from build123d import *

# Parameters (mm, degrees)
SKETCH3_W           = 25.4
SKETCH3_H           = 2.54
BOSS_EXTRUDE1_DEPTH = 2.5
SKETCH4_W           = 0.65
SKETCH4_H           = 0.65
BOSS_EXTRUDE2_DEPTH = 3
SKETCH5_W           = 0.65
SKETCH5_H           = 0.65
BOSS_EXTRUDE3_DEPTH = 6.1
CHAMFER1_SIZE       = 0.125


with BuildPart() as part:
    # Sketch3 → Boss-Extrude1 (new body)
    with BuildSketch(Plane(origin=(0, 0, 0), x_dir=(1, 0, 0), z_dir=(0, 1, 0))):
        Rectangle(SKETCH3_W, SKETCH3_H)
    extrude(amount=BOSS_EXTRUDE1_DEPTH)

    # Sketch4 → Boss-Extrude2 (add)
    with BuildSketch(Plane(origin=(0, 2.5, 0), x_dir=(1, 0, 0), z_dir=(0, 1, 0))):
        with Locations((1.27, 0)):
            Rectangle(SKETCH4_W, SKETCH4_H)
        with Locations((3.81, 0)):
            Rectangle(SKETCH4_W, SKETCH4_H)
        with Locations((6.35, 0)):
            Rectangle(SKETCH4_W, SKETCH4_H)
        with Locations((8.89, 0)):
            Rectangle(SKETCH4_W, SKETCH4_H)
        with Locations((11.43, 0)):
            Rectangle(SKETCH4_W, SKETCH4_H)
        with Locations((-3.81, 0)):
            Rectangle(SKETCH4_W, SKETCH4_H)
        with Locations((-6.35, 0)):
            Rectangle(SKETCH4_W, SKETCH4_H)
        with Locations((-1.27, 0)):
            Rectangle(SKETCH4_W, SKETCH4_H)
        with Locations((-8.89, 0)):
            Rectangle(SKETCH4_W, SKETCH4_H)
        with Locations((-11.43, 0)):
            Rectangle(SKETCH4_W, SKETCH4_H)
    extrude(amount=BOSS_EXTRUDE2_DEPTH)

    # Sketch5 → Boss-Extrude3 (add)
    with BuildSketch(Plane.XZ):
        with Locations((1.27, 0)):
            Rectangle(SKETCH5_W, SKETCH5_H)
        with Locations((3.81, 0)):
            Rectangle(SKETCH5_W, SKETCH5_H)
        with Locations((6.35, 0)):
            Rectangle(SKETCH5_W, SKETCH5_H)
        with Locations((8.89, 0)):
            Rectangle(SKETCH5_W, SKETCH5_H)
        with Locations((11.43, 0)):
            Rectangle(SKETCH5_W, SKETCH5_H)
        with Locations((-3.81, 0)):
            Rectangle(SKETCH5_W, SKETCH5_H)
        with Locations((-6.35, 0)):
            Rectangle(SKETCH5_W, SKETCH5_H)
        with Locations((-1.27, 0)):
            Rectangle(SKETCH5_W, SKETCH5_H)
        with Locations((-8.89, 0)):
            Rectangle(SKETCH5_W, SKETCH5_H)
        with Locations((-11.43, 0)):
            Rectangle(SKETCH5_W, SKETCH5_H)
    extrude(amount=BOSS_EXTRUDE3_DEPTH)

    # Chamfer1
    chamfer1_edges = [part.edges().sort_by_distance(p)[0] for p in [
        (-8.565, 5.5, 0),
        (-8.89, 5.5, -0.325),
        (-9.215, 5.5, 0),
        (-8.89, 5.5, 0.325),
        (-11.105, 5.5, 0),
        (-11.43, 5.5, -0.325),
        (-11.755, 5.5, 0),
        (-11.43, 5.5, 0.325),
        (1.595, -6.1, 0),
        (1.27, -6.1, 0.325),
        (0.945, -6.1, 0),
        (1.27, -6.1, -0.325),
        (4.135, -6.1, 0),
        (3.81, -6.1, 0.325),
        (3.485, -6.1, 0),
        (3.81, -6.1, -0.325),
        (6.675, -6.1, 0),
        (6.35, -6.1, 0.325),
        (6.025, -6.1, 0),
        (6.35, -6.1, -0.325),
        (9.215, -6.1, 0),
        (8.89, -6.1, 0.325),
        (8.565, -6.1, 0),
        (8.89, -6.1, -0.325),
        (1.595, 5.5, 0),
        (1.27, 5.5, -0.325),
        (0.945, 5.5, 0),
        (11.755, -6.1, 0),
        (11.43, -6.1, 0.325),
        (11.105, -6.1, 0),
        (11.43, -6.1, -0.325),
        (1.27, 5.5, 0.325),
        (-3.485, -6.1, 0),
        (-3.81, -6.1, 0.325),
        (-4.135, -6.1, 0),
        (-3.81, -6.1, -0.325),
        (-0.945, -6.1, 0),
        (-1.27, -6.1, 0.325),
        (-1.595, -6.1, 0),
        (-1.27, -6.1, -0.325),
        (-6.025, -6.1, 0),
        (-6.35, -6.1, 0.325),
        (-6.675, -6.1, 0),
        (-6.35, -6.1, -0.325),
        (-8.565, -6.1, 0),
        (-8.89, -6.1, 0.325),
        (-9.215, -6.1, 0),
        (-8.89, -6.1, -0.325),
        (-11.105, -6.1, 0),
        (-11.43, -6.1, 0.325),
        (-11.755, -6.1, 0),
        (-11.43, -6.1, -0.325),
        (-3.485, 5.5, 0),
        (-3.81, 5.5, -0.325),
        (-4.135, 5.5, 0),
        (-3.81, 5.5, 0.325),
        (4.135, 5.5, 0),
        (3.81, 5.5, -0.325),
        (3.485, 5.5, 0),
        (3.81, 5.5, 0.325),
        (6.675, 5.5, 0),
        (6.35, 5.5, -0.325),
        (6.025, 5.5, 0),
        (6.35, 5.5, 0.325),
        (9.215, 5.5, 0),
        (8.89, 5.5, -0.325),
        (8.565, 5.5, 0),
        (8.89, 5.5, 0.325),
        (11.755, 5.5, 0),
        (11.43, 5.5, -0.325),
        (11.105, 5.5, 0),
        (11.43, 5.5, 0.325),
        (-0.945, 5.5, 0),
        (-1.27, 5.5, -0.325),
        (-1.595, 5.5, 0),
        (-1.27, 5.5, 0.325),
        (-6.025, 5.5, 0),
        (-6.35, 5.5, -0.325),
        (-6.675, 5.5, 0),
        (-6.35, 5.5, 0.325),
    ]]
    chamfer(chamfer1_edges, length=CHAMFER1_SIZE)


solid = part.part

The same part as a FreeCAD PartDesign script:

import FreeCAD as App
import Part
import Sketcher

V = App.Vector


def edges_at(feature, points):
    """Names of the edges that pass closest to the given points."""
    edges = feature.Shape.Edges
    near = lambda p: min(range(len(edges)), key=lambda i: edges[i].distToShape(Part.Vertex(*p))[0])
    return sorted({f"Edge{near(p) + 1}" for p in points})

doc = App.newDocument("Part")
body = doc.addObject("PartDesign::Body", "Body")

# Sketch on XZ plane
sketch1 = doc.addObject("Sketcher::SketchObject", "Sketch")
body.addObject(sketch1)
sketch1.AttachmentSupport = (doc.XZ_Plane, [""])
sketch1.MapMode = "FlatFace"
sketch1.addGeometry([
    Part.LineSegment(V(-12.7, -1.27, 0), V(-12.7, 1.27, 0)),
    Part.LineSegment(V(-12.7, 1.27, 0), V(12.7, 1.27, 0)),
    Part.LineSegment(V(12.7, 1.27, 0), V(12.7, -1.27, 0)),
    Part.LineSegment(V(12.7, -1.27, 0), V(-12.7, -1.27, 0)),
], False)
sketch1.addConstraint([
    Sketcher.Constraint("Coincident", 0, 2, 1, 1),
    Sketcher.Constraint("Coincident", 1, 2, 2, 1),
    Sketcher.Constraint("Coincident", 2, 2, 3, 1),
    Sketcher.Constraint("Coincident", 3, 2, 0, 1),
    Sketcher.Constraint("Vertical", 0),
    Sketcher.Constraint("Horizontal", 1),
    Sketcher.Constraint("Vertical", 2),
    Sketcher.Constraint("Horizontal", 3),
    Sketcher.Constraint("Symmetric", 0, 2, 2, 2, -1, 1),
    Sketcher.Constraint("DistanceX", 1, 1, 1, 2, 25.4),
    Sketcher.Constraint("DistanceY", 0, 1, 0, 2, 2.54),
])
pad1 = doc.addObject("PartDesign::Pad", "Pad")
body.addObject(pad1)
pad1.Profile = sketch1
pad1.Length = 2.5
pad1.Reversed = True

# Sketch on XZ plane
sketch2 = doc.addObject("Sketcher::SketchObject", "Sketch001")
body.addObject(sketch2)
sketch2.AttachmentSupport = (doc.XZ_Plane, [""])
sketch2.MapMode = "FlatFace"
sketch2.AttachmentOffset = App.Placement(V(0, 0, -2.5), App.Rotation())
sketch2.addGeometry([
    Part.LineSegment(V(0.945, -0.325, 0), V(0.945, 0.325, 0)),  # 0
    Part.LineSegment(V(0.945, 0.325, 0), V(1.595, 0.325, 0)),  # 1
    Part.LineSegment(V(1.595, 0.325, 0), V(1.595, -0.325, 0)),  # 2
    Part.LineSegment(V(1.595, -0.325, 0), V(0.945, -0.325, 0)),  # 3
    Part.LineSegment(V(3.485, -0.325, 0), V(3.485, 0.325, 0)),  # 4
    Part.LineSegment(V(3.485, 0.325, 0), V(4.135, 0.325, 0)),  # 5
    Part.LineSegment(V(4.135, 0.325, 0), V(4.135, -0.325, 0)),  # 6
    Part.LineSegment(V(4.135, -0.325, 0), V(3.485, -0.325, 0)),  # 7
    Part.LineSegment(V(6.025, -0.325, 0), V(6.025, 0.325, 0)),  # 8
    Part.LineSegment(V(6.025, 0.325, 0), V(6.675, 0.325, 0)),  # 9
    Part.LineSegment(V(6.675, 0.325, 0), V(6.675, -0.325, 0)),  # 10
    Part.LineSegment(V(6.675, -0.325, 0), V(6.025, -0.325, 0)),  # 11
    Part.LineSegment(V(8.565, -0.325, 0), V(8.565, 0.325, 0)),  # 12
    Part.LineSegment(V(8.565, 0.325, 0), V(9.215, 0.325, 0)),  # 13
    Part.LineSegment(V(9.215, 0.325, 0), V(9.215, -0.325, 0)),  # 14
    Part.LineSegment(V(9.215, -0.325, 0), V(8.565, -0.325, 0)),  # 15
    Part.LineSegment(V(11.105, -0.325, 0), V(11.105, 0.325, 0)),  # 16
    Part.LineSegment(V(11.105, 0.325, 0), V(11.755, 0.325, 0)),  # 17
    Part.LineSegment(V(11.755, 0.325, 0), V(11.755, -0.325, 0)),  # 18
    Part.LineSegment(V(11.755, -0.325, 0), V(11.105, -0.325, 0)),  # 19
    Part.LineSegment(V(-4.135, -0.325, 0), V(-4.135, 0.325, 0)),  # 20
    Part.LineSegment(V(-4.135, 0.325, 0), V(-3.485, 0.325, 0)),  # 21
    Part.LineSegment(V(-3.485, 0.325, 0), V(-3.485, -0.325, 0)),  # 22
    Part.LineSegment(V(-3.485, -0.325, 0), V(-4.135, -0.325, 0)),  # 23
    Part.LineSegment(V(-6.675, -0.325, 0), V(-6.675, 0.325, 0)),  # 24
    Part.LineSegment(V(-6.675, 0.325, 0), V(-6.025, 0.325, 0)),  # 25
    Part.LineSegment(V(-6.025, 0.325, 0), V(-6.025, -0.325, 0)),  # 26
    Part.LineSegment(V(-6.025, -0.325, 0), V(-6.675, -0.325, 0)),  # 27
    Part.LineSegment(V(-1.595, -0.325, 0), V(-1.595, 0.325, 0)),  # 28
    Part.LineSegment(V(-1.595, 0.325, 0), V(-0.945, 0.325, 0)),  # 29
    Part.LineSegment(V(-0.945, 0.325, 0), V(-0.945, -0.325, 0)),  # 30
    Part.LineSegment(V(-0.945, -0.325, 0), V(-1.595, -0.325, 0)),  # 31
    Part.LineSegment(V(-9.215, -0.325, 0), V(-9.215, 0.325, 0)),  # 32
    Part.LineSegment(V(-9.215, 0.325, 0), V(-8.565, 0.325, 0)),  # 33
    Part.LineSegment(V(-8.565, 0.325, 0), V(-8.565, -0.325, 0)),  # 34
    Part.LineSegment(V(-8.565, -0.325, 0), V(-9.215, -0.325, 0)),  # 35
    Part.LineSegment(V(-11.755, -0.325, 0), V(-11.755, 0.325, 0)),  # 36
    Part.LineSegment(V(-11.755, 0.325, 0), V(-11.105, 0.325, 0)),  # 37
    Part.LineSegment(V(-11.105, 0.325, 0), V(-11.105, -0.325, 0)),  # 38
    Part.LineSegment(V(-11.105, -0.325, 0), V(-11.755, -0.325, 0)),  # 39
], False)
sketch2.addConstraint([
    Sketcher.Constraint("Coincident", 0, 2, 1, 1),
    Sketcher.Constraint("Coincident", 1, 2, 2, 1),
    Sketcher.Constraint("Coincident", 2, 2, 3, 1),
    Sketcher.Constraint("Coincident", 3, 2, 0, 1),
    Sketcher.Constraint("Coincident", 4, 2, 5, 1),
    Sketcher.Constraint("Coincident", 5, 2, 6, 1),
    Sketcher.Constraint("Coincident", 6, 2, 7, 1),
    Sketcher.Constraint("Coincident", 7, 2, 4, 1),
    Sketcher.Constraint("Coincident", 8, 2, 9, 1),
    Sketcher.Constraint("Coincident", 9, 2, 10, 1),
    Sketcher.Constraint("Coincident", 10, 2, 11, 1),
    Sketcher.Constraint("Coincident", 11, 2, 8, 1),
    Sketcher.Constraint("Coincident", 12, 2, 13, 1),
    Sketcher.Constraint("Coincident", 13, 2, 14, 1),
    Sketcher.Constraint("Coincident", 14, 2, 15, 1),
    Sketcher.Constraint("Coincident", 15, 2, 12, 1),
    Sketcher.Constraint("Coincident", 16, 2, 17, 1),
    Sketcher.Constraint("Coincident", 17, 2, 18, 1),
    Sketcher.Constraint("Coincident", 18, 2, 19, 1),
    Sketcher.Constraint("Coincident", 19, 2, 16, 1),
    Sketcher.Constraint("Coincident", 20, 2, 21, 1),
    Sketcher.Constraint("Coincident", 21, 2, 22, 1),
    Sketcher.Constraint("Coincident", 22, 2, 23, 1),
    Sketcher.Constraint("Coincident", 23, 2, 20, 1),
    Sketcher.Constraint("Coincident", 24, 2, 25, 1),
    Sketcher.Constraint("Coincident", 25, 2, 26, 1),
    Sketcher.Constraint("Coincident", 26, 2, 27, 1),
    Sketcher.Constraint("Coincident", 27, 2, 24, 1),
    Sketcher.Constraint("Coincident", 28, 2, 29, 1),
    Sketcher.Constraint("Coincident", 29, 2, 30, 1),
    Sketcher.Constraint("Coincident", 30, 2, 31, 1),
    Sketcher.Constraint("Coincident", 31, 2, 28, 1),
    Sketcher.Constraint("Coincident", 32, 2, 33, 1),
    Sketcher.Constraint("Coincident", 33, 2, 34, 1),
    Sketcher.Constraint("Coincident", 34, 2, 35, 1),
    Sketcher.Constraint("Coincident", 35, 2, 32, 1),
    Sketcher.Constraint("Coincident", 36, 2, 37, 1),
    Sketcher.Constraint("Coincident", 37, 2, 38, 1),
    Sketcher.Constraint("Coincident", 38, 2, 39, 1),
    Sketcher.Constraint("Coincident", 39, 2, 36, 1),
    Sketcher.Constraint("Vertical", 0),
    Sketcher.Constraint("Horizontal", 1),
    Sketcher.Constraint("Vertical", 2),
    Sketcher.Constraint("Horizontal", 3),
    Sketcher.Constraint("Vertical", 4),
    Sketcher.Constraint("Horizontal", 5),
    Sketcher.Constraint("Vertical", 6),
    Sketcher.Constraint("Horizontal", 7),
    Sketcher.Constraint("Vertical", 8),
    Sketcher.Constraint("Horizontal", 9),
    Sketcher.Constraint("Vertical", 10),
    Sketcher.Constraint("Horizontal", 11),
    Sketcher.Constraint("Vertical", 12),
    Sketcher.Constraint("Horizontal", 13),
    Sketcher.Constraint("Vertical", 14),
    Sketcher.Constraint("Horizontal", 15),
    Sketcher.Constraint("Vertical", 16),
    Sketcher.Constraint("Horizontal", 17),
    Sketcher.Constraint("Vertical", 18),
    Sketcher.Constraint("Horizontal", 19),
    Sketcher.Constraint("Vertical", 20),
    Sketcher.Constraint("Horizontal", 21),
    Sketcher.Constraint("Vertical", 22),
    Sketcher.Constraint("Horizontal", 23),
    Sketcher.Constraint("Vertical", 24),
    Sketcher.Constraint("Horizontal", 25),
    Sketcher.Constraint("Vertical", 26),
    Sketcher.Constraint("Horizontal", 27),
    Sketcher.Constraint("Vertical", 28),
    Sketcher.Constraint("Horizontal", 29),
    Sketcher.Constraint("Vertical", 30),
    Sketcher.Constraint("Horizontal", 31),
    Sketcher.Constraint("Vertical", 32),
    Sketcher.Constraint("Horizontal", 33),
    Sketcher.Constraint("Vertical", 34),
    Sketcher.Constraint("Horizontal", 35),
    Sketcher.Constraint("Vertical", 36),
    Sketcher.Constraint("Horizontal", 37),
    Sketcher.Constraint("Vertical", 38),
    Sketcher.Constraint("Horizontal", 39),
    Sketcher.Constraint("Symmetric", 6, 2, 20, 2, -1, 1),
    Sketcher.Constraint("Symmetric", 4, 2, 22, 2, -1, 1),
    Sketcher.Constraint("Symmetric", 10, 2, 24, 2, -1, 1),
    Sketcher.Constraint("Symmetric", 8, 2, 26, 2, -1, 1),
    Sketcher.Constraint("Symmetric", 2, 2, 28, 2, -1, 1),
    Sketcher.Constraint("Symmetric", 0, 2, 30, 2, -1, 1),
    Sketcher.Constraint("Symmetric", 14, 2, 32, 2, -1, 1),
    Sketcher.Constraint("Symmetric", 12, 2, 34, 2, -1, 1),
    Sketcher.Constraint("Symmetric", 18, 2, 36, 2, -1, 1),
    Sketcher.Constraint("Symmetric", 16, 2, 38, 2, -1, 1),
    Sketcher.Constraint("Horizontal", 1, 2, 4, 2),
    Sketcher.Constraint("Horizontal", 3, 2, 6, 2),
    Sketcher.Constraint("Horizontal", 5, 2, 8, 2),
    Sketcher.Constraint("Horizontal", 7, 2, 10, 2),
    Sketcher.Constraint("Horizontal", 9, 2, 12, 2),
    Sketcher.Constraint("Horizontal", 11, 2, 14, 2),
    Sketcher.Constraint("Horizontal", 13, 2, 16, 2),
    Sketcher.Constraint("Horizontal", 15, 2, 18, 2),
    Sketcher.Constraint("Horizontal", 17, 2, 20, 2),
    Sketcher.Constraint("Equal", 3, 5),
    Sketcher.Constraint("Equal", 7, 9),
    Sketcher.Constraint("Equal", 11, 13),
    Sketcher.Constraint("Equal", 15, 17),
    Sketcher.Constraint("Equal", 39, 0),
    Sketcher.Constraint("DistanceX", 1, 1, 1, 2, 0.65),
    Sketcher.Constraint("DistanceX", 1, 2, 4, 2, 1.89),
    Sketcher.Constraint("DistanceX", 5, 2, 8, 2, 1.89),
    Sketcher.Constraint("DistanceX", 9, 2, 12, 2, 1.89),
    Sketcher.Constraint("DistanceX", 13, 2, 16, 2, 1.89),
    Sketcher.Constraint("DistanceX", 20, 2, 0, 2, 5.08),
])
pad2 = doc.addObject("PartDesign::Pad", "Pad001")
body.addObject(pad2)
pad2.Profile = sketch2
pad2.Length = 3
pad2.Reversed = True

# Sketch on XZ plane
sketch3 = doc.addObject("Sketcher::SketchObject", "Sketch002")
body.addObject(sketch3)
sketch3.AttachmentSupport = (doc.XZ_Plane, [""])
sketch3.MapMode = "FlatFace"
sketch3.addGeometry([
    Part.LineSegment(V(0.945, 0.325, 0), V(0.945, -0.325, 0)),  # 0
    Part.LineSegment(V(0.945, -0.325, 0), V(1.595, -0.325, 0)),  # 1
    Part.LineSegment(V(1.595, -0.325, 0), V(1.595, 0.325, 0)),  # 2
    Part.LineSegment(V(1.595, 0.325, 0), V(0.945, 0.325, 0)),  # 3
    Part.LineSegment(V(3.485, 0.325, 0), V(3.485, -0.325, 0)),  # 4
    Part.LineSegment(V(3.485, -0.325, 0), V(4.135, -0.325, 0)),  # 5
    Part.LineSegment(V(4.135, -0.325, 0), V(4.135, 0.325, 0)),  # 6
    Part.LineSegment(V(4.135, 0.325, 0), V(3.485, 0.325, 0)),  # 7
    Part.LineSegment(V(6.025, 0.325, 0), V(6.025, -0.325, 0)),  # 8
    Part.LineSegment(V(6.025, -0.325, 0), V(6.675, -0.325, 0)),  # 9
    Part.LineSegment(V(6.675, -0.325, 0), V(6.675, 0.325, 0)),  # 10
    Part.LineSegment(V(6.675, 0.325, 0), V(6.025, 0.325, 0)),  # 11
    Part.LineSegment(V(8.565, 0.325, 0), V(8.565, -0.325, 0)),  # 12
    Part.LineSegment(V(8.565, -0.325, 0), V(9.215, -0.325, 0)),  # 13
    Part.LineSegment(V(9.215, -0.325, 0), V(9.215, 0.325, 0)),  # 14
    Part.LineSegment(V(9.215, 0.325, 0), V(8.565, 0.325, 0)),  # 15
    Part.LineSegment(V(11.105, 0.325, 0), V(11.105, -0.325, 0)),  # 16
    Part.LineSegment(V(11.105, -0.325, 0), V(11.755, -0.325, 0)),  # 17
    Part.LineSegment(V(11.755, -0.325, 0), V(11.755, 0.325, 0)),  # 18
    Part.LineSegment(V(11.755, 0.325, 0), V(11.105, 0.325, 0)),  # 19
    Part.LineSegment(V(-4.135, 0.325, 0), V(-4.135, -0.325, 0)),  # 20
    Part.LineSegment(V(-4.135, -0.325, 0), V(-3.485, -0.325, 0)),  # 21
    Part.LineSegment(V(-3.485, -0.325, 0), V(-3.485, 0.325, 0)),  # 22
    Part.LineSegment(V(-3.485, 0.325, 0), V(-4.135, 0.325, 0)),  # 23
    Part.LineSegment(V(-6.675, 0.325, 0), V(-6.675, -0.325, 0)),  # 24
    Part.LineSegment(V(-6.675, -0.325, 0), V(-6.025, -0.325, 0)),  # 25
    Part.LineSegment(V(-6.025, -0.325, 0), V(-6.025, 0.325, 0)),  # 26
    Part.LineSegment(V(-6.025, 0.325, 0), V(-6.675, 0.325, 0)),  # 27
    Part.LineSegment(V(-1.595, 0.325, 0), V(-1.595, -0.325, 0)),  # 28
    Part.LineSegment(V(-1.595, -0.325, 0), V(-0.945, -0.325, 0)),  # 29
    Part.LineSegment(V(-0.945, -0.325, 0), V(-0.945, 0.325, 0)),  # 30
    Part.LineSegment(V(-0.945, 0.325, 0), V(-1.595, 0.325, 0)),  # 31
    Part.LineSegment(V(-9.215, 0.325, 0), V(-9.215, -0.325, 0)),  # 32
    Part.LineSegment(V(-9.215, -0.325, 0), V(-8.565, -0.325, 0)),  # 33
    Part.LineSegment(V(-8.565, -0.325, 0), V(-8.565, 0.325, 0)),  # 34
    Part.LineSegment(V(-8.565, 0.325, 0), V(-9.215, 0.325, 0)),  # 35
    Part.LineSegment(V(-11.755, 0.325, 0), V(-11.755, -0.325, 0)),  # 36
    Part.LineSegment(V(-11.755, -0.325, 0), V(-11.105, -0.325, 0)),  # 37
    Part.LineSegment(V(-11.105, -0.325, 0), V(-11.105, 0.325, 0)),  # 38
    Part.LineSegment(V(-11.105, 0.325, 0), V(-11.755, 0.325, 0)),  # 39
], False)
sketch3.addConstraint([
    Sketcher.Constraint("Coincident", 0, 2, 1, 1),
    Sketcher.Constraint("Coincident", 1, 2, 2, 1),
    Sketcher.Constraint("Coincident", 2, 2, 3, 1),
    Sketcher.Constraint("Coincident", 3, 2, 0, 1),
    Sketcher.Constraint("Coincident", 4, 2, 5, 1),
    Sketcher.Constraint("Coincident", 5, 2, 6, 1),
    Sketcher.Constraint("Coincident", 6, 2, 7, 1),
    Sketcher.Constraint("Coincident", 7, 2, 4, 1),
    Sketcher.Constraint("Coincident", 8, 2, 9, 1),
    Sketcher.Constraint("Coincident", 9, 2, 10, 1),
    Sketcher.Constraint("Coincident", 10, 2, 11, 1),
    Sketcher.Constraint("Coincident", 11, 2, 8, 1),
    Sketcher.Constraint("Coincident", 12, 2, 13, 1),
    Sketcher.Constraint("Coincident", 13, 2, 14, 1),
    Sketcher.Constraint("Coincident", 14, 2, 15, 1),
    Sketcher.Constraint("Coincident", 15, 2, 12, 1),
    Sketcher.Constraint("Coincident", 16, 2, 17, 1),
    Sketcher.Constraint("Coincident", 17, 2, 18, 1),
    Sketcher.Constraint("Coincident", 18, 2, 19, 1),
    Sketcher.Constraint("Coincident", 19, 2, 16, 1),
    Sketcher.Constraint("Coincident", 20, 2, 21, 1),
    Sketcher.Constraint("Coincident", 21, 2, 22, 1),
    Sketcher.Constraint("Coincident", 22, 2, 23, 1),
    Sketcher.Constraint("Coincident", 23, 2, 20, 1),
    Sketcher.Constraint("Coincident", 24, 2, 25, 1),
    Sketcher.Constraint("Coincident", 25, 2, 26, 1),
    Sketcher.Constraint("Coincident", 26, 2, 27, 1),
    Sketcher.Constraint("Coincident", 27, 2, 24, 1),
    Sketcher.Constraint("Coincident", 28, 2, 29, 1),
    Sketcher.Constraint("Coincident", 29, 2, 30, 1),
    Sketcher.Constraint("Coincident", 30, 2, 31, 1),
    Sketcher.Constraint("Coincident", 31, 2, 28, 1),
    Sketcher.Constraint("Coincident", 32, 2, 33, 1),
    Sketcher.Constraint("Coincident", 33, 2, 34, 1),
    Sketcher.Constraint("Coincident", 34, 2, 35, 1),
    Sketcher.Constraint("Coincident", 35, 2, 32, 1),
    Sketcher.Constraint("Coincident", 36, 2, 37, 1),
    Sketcher.Constraint("Coincident", 37, 2, 38, 1),
    Sketcher.Constraint("Coincident", 38, 2, 39, 1),
    Sketcher.Constraint("Coincident", 39, 2, 36, 1),
    Sketcher.Constraint("Vertical", 0),
    Sketcher.Constraint("Horizontal", 1),
    Sketcher.Constraint("Vertical", 2),
    Sketcher.Constraint("Horizontal", 3),
    Sketcher.Constraint("Vertical", 4),
    Sketcher.Constraint("Horizontal", 5),
    Sketcher.Constraint("Vertical", 6),
    Sketcher.Constraint("Horizontal", 7),
    Sketcher.Constraint("Vertical", 8),
    Sketcher.Constraint("Horizontal", 9),
    Sketcher.Constraint("Vertical", 10),
    Sketcher.Constraint("Horizontal", 11),
    Sketcher.Constraint("Vertical", 12),
    Sketcher.Constraint("Horizontal", 13),
    Sketcher.Constraint("Vertical", 14),
    Sketcher.Constraint("Horizontal", 15),
    Sketcher.Constraint("Vertical", 16),
    Sketcher.Constraint("Horizontal", 17),
    Sketcher.Constraint("Vertical", 18),
    Sketcher.Constraint("Horizontal", 19),
    Sketcher.Constraint("Vertical", 20),
    Sketcher.Constraint("Horizontal", 21),
    Sketcher.Constraint("Vertical", 22),
    Sketcher.Constraint("Horizontal", 23),
    Sketcher.Constraint("Vertical", 24),
    Sketcher.Constraint("Horizontal", 25),
    Sketcher.Constraint("Vertical", 26),
    Sketcher.Constraint("Horizontal", 27),
    Sketcher.Constraint("Vertical", 28),
    Sketcher.Constraint("Horizontal", 29),
    Sketcher.Constraint("Vertical", 30),
    Sketcher.Constraint("Horizontal", 31),
    Sketcher.Constraint("Vertical", 32),
    Sketcher.Constraint("Horizontal", 33),
    Sketcher.Constraint("Vertical", 34),
    Sketcher.Constraint("Horizontal", 35),
    Sketcher.Constraint("Vertical", 36),
    Sketcher.Constraint("Horizontal", 37),
    Sketcher.Constraint("Vertical", 38),
    Sketcher.Constraint("Horizontal", 39),
    Sketcher.Constraint("Symmetric", 6, 2, 20, 2, -1, 1),
    Sketcher.Constraint("Symmetric", 4, 2, 22, 2, -1, 1),
    Sketcher.Constraint("Symmetric", 10, 2, 24, 2, -1, 1),
    Sketcher.Constraint("Symmetric", 8, 2, 26, 2, -1, 1),
    Sketcher.Constraint("Symmetric", 2, 2, 28, 2, -1, 1),
    Sketcher.Constraint("Symmetric", 0, 2, 30, 2, -1, 1),
    Sketcher.Constraint("Symmetric", 14, 2, 32, 2, -1, 1),
    Sketcher.Constraint("Symmetric", 12, 2, 34, 2, -1, 1),
    Sketcher.Constraint("Symmetric", 18, 2, 36, 2, -1, 1),
    Sketcher.Constraint("Symmetric", 16, 2, 38, 2, -1, 1),
    Sketcher.Constraint("Horizontal", 1, 2, 4, 2),
    Sketcher.Constraint("Horizontal", 3, 2, 6, 2),
    Sketcher.Constraint("Horizontal", 5, 2, 8, 2),
    Sketcher.Constraint("Horizontal", 7, 2, 10, 2),
    Sketcher.Constraint("Horizontal", 9, 2, 12, 2),
    Sketcher.Constraint("Horizontal", 11, 2, 14, 2),
    Sketcher.Constraint("Horizontal", 13, 2, 16, 2),
    Sketcher.Constraint("Horizontal", 15, 2, 18, 2),
    Sketcher.Constraint("Horizontal", 17, 2, 20, 2),
    Sketcher.Constraint("Equal", 3, 5),
    Sketcher.Constraint("Equal", 7, 9),
    Sketcher.Constraint("Equal", 11, 13),
    Sketcher.Constraint("Equal", 15, 17),
    Sketcher.Constraint("Equal", 39, 0),
    Sketcher.Constraint("DistanceX", 1, 1, 1, 2, 0.65),
    Sketcher.Constraint("DistanceX", 1, 2, 4, 2, 1.89),
    Sketcher.Constraint("DistanceX", 5, 2, 8, 2, 1.89),
    Sketcher.Constraint("DistanceX", 9, 2, 12, 2, 1.89),
    Sketcher.Constraint("DistanceX", 13, 2, 16, 2, 1.89),
    Sketcher.Constraint("DistanceX", 20, 2, 0, 2, 5.08),
])
pad3 = doc.addObject("PartDesign::Pad", "Pad002")
body.addObject(pad3)
pad3.Profile = sketch3
pad3.Length = 6.1
doc.recompute()

chamfer = doc.addObject("PartDesign::Chamfer", "Chamfer")
body.addObject(chamfer)
chamfer.Base = (pad3, edges_at(pad3, [
    (-8.565, 5.5, 0),
    (-8.89, 5.5, -0.325),
    (-9.215, 5.5, 0),
    (-8.89, 5.5, 0.325),
    (-11.105, 5.5, 0),
    (-11.43, 5.5, -0.325),
    (-11.755, 5.5, 0),
    (-11.43, 5.5, 0.325),
    (1.595, -6.1, 0),
    (1.27, -6.1, 0.325),
    (0.945, -6.1, 0),
    (1.27, -6.1, -0.325),
    (4.135, -6.1, 0),
    (3.81, -6.1, 0.325),
    (3.485, -6.1, 0),
    (3.81, -6.1, -0.325),
    (6.675, -6.1, 0),
    (6.35, -6.1, 0.325),
    (6.025, -6.1, 0),
    (6.35, -6.1, -0.325),
    (9.215, -6.1, 0),
    (8.89, -6.1, 0.325),
    (8.565, -6.1, 0),
    (8.89, -6.1, -0.325),
    (1.595, 5.5, 0),
    (1.27, 5.5, -0.325),
    (0.945, 5.5, 0),
    (11.755, -6.1, 0),
    (11.43, -6.1, 0.325),
    (11.105, -6.1, 0),
    (11.43, -6.1, -0.325),
    (1.27, 5.5, 0.325),
    (-3.485, -6.1, 0),
    (-3.81, -6.1, 0.325),
    (-4.135, -6.1, 0),
    (-3.81, -6.1, -0.325),
    (-0.945, -6.1, 0),
    (-1.27, -6.1, 0.325),
    (-1.595, -6.1, 0),
    (-1.27, -6.1, -0.325),
    (-6.025, -6.1, 0),
    (-6.35, -6.1, 0.325),
    (-6.675, -6.1, 0),
    (-6.35, -6.1, -0.325),
    (-8.565, -6.1, 0),
    (-8.89, -6.1, 0.325),
    (-9.215, -6.1, 0),
    (-8.89, -6.1, -0.325),
    (-11.105, -6.1, 0),
    (-11.43, -6.1, 0.325),
    (-11.755, -6.1, 0),
    (-11.43, -6.1, -0.325),
    (-3.485, 5.5, 0),
    (-3.81, 5.5, -0.325),
    (-4.135, 5.5, 0),
    (-3.81, 5.5, 0.325),
    (4.135, 5.5, 0),
    (3.81, 5.5, -0.325),
    (3.485, 5.5, 0),
    (3.81, 5.5, 0.325),
    (6.675, 5.5, 0),
    (6.35, 5.5, -0.325),
    (6.025, 5.5, 0),
    (6.35, 5.5, 0.325),
    (9.215, 5.5, 0),
    (8.89, 5.5, -0.325),
    (8.565, 5.5, 0),
    (8.89, 5.5, 0.325),
    (11.755, 5.5, 0),
    (11.43, 5.5, -0.325),
    (11.105, 5.5, 0),
    (11.43, 5.5, 0.325),
    (-0.945, 5.5, 0),
    (-1.27, 5.5, -0.325),
    (-1.595, 5.5, 0),
    (-1.27, 5.5, 0.325),
    (-6.025, 5.5, 0),
    (-6.35, 5.5, -0.325),
    (-6.675, 5.5, 0),
    (-6.35, 5.5, 0.325),
]))
chamfer.Size = 0.125

doc.recompute()
